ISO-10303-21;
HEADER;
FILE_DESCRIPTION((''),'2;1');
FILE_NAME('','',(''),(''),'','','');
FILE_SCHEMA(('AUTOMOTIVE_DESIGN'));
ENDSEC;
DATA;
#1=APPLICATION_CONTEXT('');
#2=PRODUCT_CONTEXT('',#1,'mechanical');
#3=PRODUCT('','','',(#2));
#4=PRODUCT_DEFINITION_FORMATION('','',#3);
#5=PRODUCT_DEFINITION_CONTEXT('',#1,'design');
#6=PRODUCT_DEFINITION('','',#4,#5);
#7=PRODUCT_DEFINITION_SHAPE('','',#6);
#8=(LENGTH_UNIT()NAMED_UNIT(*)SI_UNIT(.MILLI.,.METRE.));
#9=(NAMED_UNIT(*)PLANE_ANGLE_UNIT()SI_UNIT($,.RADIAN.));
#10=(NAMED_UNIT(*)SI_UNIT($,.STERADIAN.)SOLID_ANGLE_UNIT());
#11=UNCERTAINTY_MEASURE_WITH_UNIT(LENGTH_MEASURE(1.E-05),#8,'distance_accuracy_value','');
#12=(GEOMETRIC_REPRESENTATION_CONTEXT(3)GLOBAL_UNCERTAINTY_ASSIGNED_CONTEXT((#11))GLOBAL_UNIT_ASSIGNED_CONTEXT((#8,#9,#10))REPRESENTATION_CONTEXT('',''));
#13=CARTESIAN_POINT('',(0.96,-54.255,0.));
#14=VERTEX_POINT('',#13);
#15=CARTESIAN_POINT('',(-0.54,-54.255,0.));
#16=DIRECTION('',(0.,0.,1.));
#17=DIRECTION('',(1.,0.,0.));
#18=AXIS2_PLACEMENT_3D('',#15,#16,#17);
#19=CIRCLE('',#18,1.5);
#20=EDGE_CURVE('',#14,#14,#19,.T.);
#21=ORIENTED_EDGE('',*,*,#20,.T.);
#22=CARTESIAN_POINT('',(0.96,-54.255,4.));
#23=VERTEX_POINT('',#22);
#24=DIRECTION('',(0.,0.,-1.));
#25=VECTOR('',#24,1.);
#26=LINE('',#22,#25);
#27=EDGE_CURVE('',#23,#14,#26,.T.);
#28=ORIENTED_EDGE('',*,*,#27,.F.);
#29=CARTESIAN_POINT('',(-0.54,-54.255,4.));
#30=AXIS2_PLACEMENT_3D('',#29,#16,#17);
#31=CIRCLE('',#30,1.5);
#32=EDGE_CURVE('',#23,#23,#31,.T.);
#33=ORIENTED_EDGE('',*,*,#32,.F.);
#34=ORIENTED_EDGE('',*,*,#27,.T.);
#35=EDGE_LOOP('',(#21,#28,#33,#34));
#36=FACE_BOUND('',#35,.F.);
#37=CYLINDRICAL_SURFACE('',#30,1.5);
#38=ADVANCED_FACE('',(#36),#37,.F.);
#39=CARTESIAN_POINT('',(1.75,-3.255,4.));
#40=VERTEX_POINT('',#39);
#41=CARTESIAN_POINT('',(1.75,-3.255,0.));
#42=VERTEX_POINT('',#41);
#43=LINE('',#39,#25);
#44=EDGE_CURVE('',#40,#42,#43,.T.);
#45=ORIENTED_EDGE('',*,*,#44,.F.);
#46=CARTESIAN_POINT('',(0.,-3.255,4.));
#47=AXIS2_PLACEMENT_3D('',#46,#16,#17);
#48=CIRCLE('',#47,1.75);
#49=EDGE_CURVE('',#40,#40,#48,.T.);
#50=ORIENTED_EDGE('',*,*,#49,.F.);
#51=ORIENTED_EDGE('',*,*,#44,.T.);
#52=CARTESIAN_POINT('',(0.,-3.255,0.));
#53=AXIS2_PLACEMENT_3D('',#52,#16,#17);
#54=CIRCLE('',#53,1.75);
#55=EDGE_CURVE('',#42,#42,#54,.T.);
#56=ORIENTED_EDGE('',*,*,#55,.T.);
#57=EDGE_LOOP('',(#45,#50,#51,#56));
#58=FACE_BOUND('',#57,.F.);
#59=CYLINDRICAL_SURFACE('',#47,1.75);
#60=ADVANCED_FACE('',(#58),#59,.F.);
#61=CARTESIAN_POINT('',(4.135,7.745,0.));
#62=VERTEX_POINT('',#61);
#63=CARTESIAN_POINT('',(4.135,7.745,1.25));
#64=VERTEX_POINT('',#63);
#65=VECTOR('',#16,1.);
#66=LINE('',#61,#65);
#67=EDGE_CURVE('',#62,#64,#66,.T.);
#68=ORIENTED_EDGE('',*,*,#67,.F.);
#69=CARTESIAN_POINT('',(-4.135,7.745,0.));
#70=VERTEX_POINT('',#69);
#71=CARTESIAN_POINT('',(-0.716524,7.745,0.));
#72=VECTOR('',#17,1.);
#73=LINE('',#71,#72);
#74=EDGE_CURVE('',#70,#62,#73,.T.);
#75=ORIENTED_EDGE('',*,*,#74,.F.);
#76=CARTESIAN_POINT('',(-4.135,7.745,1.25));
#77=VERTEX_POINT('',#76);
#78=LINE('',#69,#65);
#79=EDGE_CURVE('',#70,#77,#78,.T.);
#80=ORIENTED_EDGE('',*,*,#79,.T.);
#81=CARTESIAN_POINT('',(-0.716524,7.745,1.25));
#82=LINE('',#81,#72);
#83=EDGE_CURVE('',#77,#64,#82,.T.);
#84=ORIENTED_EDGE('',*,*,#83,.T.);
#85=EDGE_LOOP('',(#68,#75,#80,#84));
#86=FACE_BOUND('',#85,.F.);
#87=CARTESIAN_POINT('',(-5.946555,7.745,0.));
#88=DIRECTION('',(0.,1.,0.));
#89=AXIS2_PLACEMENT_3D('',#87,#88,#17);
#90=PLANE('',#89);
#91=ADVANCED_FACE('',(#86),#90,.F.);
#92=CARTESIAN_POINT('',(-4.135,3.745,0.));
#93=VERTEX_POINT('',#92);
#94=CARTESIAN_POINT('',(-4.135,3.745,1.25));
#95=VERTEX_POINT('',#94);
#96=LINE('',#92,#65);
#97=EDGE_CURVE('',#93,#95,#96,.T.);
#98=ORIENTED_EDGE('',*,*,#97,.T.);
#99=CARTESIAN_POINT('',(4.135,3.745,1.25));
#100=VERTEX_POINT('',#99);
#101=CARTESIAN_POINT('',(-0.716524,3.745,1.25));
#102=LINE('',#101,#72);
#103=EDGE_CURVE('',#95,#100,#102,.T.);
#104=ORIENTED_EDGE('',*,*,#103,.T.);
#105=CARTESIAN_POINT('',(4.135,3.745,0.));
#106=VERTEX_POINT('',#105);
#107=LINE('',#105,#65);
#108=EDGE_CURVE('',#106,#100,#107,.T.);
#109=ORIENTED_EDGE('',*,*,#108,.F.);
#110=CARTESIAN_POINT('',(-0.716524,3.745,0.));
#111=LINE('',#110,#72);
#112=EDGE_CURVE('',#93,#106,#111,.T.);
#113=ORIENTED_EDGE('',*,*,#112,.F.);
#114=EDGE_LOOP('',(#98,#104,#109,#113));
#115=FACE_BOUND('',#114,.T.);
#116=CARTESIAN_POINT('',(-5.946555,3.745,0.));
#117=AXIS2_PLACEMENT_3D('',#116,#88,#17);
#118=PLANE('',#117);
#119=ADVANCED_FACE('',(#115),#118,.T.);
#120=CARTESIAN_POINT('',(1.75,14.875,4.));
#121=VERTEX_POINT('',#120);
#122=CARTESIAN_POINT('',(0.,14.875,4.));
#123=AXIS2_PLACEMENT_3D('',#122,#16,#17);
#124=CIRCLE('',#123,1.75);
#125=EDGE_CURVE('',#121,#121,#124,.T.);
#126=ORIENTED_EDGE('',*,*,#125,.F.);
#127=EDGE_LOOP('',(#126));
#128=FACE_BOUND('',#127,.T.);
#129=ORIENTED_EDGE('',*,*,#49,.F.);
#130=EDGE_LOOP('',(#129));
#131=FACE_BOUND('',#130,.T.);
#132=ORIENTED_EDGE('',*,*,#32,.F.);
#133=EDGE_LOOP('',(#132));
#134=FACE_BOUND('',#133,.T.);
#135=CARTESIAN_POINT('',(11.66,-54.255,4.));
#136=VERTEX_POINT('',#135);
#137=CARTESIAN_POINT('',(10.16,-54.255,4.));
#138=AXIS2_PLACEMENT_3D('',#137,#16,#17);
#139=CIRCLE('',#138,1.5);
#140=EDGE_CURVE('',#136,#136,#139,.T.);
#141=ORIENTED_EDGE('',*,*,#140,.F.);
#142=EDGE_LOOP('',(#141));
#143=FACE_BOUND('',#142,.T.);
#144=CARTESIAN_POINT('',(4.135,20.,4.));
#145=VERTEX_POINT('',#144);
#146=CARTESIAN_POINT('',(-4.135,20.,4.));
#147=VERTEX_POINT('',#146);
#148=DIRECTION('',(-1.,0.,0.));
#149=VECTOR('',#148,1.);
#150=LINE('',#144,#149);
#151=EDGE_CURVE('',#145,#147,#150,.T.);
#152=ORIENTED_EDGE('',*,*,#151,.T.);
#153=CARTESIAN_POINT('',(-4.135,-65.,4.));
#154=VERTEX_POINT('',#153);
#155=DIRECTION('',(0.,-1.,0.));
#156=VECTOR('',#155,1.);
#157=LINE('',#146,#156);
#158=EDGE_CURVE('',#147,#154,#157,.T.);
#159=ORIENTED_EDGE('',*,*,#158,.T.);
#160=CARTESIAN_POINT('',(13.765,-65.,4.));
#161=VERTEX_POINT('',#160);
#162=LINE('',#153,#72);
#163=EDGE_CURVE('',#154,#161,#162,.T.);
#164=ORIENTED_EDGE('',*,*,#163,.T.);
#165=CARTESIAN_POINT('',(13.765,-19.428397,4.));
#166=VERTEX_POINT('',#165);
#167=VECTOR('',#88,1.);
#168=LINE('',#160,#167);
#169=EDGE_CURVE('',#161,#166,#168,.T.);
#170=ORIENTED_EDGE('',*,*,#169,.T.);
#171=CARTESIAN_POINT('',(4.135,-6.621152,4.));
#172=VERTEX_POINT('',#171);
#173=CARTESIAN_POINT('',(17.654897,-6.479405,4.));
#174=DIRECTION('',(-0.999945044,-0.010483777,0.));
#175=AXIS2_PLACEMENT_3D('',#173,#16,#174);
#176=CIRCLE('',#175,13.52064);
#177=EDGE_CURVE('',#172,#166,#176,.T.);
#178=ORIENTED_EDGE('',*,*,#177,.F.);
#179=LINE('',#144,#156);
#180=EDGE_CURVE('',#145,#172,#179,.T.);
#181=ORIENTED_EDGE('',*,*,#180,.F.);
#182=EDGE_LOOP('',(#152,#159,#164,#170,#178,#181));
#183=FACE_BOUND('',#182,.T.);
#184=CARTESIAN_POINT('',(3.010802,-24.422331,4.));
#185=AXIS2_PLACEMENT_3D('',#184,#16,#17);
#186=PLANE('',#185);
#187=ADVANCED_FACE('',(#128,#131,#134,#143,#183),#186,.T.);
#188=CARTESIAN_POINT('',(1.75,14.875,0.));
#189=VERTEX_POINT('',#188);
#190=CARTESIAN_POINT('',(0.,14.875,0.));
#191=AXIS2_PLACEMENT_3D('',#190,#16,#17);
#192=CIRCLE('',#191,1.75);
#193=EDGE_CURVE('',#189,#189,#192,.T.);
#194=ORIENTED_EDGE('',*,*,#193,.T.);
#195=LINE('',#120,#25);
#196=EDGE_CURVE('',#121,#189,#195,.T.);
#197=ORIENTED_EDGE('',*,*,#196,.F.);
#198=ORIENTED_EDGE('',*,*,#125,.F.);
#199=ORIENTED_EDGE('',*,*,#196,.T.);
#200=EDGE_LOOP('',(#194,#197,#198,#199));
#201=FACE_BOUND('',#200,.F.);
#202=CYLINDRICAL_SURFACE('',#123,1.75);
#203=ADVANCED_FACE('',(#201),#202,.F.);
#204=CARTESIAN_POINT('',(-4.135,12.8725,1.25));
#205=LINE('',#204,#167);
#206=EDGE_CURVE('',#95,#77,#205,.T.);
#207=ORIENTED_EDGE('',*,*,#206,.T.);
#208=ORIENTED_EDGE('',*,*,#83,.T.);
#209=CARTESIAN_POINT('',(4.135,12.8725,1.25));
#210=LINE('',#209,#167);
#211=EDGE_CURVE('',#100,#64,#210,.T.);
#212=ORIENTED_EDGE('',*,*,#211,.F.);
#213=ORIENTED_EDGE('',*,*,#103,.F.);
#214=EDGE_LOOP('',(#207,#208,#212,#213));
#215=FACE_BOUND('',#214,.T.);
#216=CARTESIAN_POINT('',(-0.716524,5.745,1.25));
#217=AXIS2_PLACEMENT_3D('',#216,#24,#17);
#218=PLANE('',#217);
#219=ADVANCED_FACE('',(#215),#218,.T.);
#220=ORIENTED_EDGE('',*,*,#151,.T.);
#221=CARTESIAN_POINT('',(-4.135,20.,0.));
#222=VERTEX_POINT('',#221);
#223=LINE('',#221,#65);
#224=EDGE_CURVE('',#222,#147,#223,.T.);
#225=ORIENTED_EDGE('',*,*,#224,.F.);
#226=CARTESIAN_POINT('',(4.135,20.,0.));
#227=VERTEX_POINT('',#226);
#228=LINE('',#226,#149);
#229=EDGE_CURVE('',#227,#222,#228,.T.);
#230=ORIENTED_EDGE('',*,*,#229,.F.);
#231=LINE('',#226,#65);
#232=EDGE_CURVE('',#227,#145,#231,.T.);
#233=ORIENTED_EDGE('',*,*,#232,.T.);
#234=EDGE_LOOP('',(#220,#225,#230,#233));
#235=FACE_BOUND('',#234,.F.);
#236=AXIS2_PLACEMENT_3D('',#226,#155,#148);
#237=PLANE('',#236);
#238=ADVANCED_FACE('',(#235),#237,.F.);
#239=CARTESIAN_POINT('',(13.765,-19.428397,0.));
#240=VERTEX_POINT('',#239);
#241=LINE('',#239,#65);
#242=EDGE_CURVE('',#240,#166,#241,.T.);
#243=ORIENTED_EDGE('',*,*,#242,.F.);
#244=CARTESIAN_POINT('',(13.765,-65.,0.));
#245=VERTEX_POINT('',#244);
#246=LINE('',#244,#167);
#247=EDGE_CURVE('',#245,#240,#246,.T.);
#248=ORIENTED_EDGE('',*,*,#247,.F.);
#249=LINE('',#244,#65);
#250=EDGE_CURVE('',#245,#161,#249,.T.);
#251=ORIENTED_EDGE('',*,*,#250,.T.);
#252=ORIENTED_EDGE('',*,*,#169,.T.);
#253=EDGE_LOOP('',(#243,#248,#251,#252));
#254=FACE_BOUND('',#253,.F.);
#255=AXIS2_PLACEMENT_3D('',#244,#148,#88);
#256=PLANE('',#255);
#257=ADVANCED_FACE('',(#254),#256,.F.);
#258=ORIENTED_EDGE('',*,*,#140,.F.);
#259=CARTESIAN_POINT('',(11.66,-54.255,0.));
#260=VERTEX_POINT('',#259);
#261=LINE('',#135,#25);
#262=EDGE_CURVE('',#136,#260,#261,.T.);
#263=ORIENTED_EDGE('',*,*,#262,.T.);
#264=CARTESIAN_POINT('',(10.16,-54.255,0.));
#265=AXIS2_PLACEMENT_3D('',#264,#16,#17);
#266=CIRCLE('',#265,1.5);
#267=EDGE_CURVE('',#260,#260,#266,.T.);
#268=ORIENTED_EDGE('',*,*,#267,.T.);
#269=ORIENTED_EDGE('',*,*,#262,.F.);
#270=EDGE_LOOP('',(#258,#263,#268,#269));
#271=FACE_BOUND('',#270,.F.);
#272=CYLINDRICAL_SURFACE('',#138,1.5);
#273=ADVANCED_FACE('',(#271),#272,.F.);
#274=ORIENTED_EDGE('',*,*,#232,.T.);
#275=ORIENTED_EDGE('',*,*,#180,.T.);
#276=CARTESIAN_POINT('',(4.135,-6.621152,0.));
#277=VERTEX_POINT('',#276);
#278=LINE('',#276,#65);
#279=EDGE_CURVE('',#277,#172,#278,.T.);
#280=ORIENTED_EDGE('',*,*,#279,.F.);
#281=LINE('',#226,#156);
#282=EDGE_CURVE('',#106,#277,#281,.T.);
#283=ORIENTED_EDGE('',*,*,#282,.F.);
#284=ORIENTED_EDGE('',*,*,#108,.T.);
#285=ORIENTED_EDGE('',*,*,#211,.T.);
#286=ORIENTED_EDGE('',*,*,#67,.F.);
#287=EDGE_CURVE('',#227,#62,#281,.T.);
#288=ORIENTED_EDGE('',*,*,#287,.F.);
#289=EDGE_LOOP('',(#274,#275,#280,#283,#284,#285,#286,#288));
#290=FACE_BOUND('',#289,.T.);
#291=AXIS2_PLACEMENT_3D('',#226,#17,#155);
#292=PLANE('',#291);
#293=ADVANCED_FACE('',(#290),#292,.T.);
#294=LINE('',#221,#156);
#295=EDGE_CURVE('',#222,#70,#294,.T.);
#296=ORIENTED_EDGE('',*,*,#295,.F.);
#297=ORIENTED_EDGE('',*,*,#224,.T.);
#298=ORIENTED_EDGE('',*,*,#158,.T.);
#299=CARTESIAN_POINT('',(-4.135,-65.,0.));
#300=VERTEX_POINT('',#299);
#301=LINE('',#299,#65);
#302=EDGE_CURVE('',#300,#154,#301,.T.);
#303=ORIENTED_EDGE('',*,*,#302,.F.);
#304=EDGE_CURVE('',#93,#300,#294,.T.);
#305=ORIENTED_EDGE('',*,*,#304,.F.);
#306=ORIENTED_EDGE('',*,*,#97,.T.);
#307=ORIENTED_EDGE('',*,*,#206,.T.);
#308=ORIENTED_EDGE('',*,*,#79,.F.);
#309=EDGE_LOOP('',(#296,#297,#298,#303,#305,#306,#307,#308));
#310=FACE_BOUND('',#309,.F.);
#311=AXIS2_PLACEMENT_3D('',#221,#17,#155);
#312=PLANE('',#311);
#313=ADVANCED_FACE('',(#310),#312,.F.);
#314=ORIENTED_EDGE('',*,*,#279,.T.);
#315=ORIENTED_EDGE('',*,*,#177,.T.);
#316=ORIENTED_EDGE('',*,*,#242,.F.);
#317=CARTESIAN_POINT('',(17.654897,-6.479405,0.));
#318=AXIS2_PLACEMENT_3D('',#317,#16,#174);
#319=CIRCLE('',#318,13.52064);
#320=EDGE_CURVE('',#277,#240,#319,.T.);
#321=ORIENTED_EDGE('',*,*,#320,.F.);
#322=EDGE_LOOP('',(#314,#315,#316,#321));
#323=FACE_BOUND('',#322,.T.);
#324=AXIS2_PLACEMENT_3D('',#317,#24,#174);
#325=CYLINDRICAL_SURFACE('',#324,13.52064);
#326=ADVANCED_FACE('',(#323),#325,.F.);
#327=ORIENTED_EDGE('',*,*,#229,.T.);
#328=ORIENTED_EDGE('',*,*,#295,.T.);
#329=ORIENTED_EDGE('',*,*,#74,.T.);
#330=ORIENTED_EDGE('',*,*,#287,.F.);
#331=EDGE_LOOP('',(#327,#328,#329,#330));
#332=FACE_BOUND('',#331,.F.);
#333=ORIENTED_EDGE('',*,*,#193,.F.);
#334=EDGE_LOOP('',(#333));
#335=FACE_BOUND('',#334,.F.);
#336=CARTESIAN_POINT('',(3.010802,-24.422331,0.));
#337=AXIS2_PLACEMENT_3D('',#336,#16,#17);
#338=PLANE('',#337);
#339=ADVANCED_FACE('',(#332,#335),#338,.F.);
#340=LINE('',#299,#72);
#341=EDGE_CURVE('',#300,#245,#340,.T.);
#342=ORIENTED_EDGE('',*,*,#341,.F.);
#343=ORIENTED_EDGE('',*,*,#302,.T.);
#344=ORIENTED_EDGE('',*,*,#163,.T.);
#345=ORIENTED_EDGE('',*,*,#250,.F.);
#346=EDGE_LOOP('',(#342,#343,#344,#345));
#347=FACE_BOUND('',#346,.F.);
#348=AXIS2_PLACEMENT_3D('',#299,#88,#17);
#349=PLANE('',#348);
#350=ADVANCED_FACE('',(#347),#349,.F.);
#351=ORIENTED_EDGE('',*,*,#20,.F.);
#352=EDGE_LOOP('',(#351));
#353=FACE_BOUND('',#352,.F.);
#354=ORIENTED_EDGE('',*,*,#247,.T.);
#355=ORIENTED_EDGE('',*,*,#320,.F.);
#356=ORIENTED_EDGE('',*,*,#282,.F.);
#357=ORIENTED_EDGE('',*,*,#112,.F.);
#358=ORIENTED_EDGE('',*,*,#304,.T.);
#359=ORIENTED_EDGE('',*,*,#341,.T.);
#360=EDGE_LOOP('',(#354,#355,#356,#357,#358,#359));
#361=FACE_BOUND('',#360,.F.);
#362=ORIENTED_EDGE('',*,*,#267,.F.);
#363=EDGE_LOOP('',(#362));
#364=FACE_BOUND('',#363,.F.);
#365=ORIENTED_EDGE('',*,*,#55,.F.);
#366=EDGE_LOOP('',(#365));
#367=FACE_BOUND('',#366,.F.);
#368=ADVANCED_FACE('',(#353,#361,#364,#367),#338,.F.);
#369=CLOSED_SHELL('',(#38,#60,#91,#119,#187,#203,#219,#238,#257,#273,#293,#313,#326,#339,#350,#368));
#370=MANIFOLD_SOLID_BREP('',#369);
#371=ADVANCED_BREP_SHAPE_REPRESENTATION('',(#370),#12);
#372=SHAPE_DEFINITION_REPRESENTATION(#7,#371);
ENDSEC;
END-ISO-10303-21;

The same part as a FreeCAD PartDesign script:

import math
import FreeCAD as App
import Part
import Sketcher

V = App.Vector
Q = App.Units.Quantity


def add_polygon(sketch, points):
    """Adds a closed chain of lines whose ends are joined by coincident constraints."""
    first, n = sketch.GeometryCount, len(points)
    for a, b in zip(points, points[1:] + points[:1]):
        sketch.addGeometry(Part.LineSegment(App.Vector(*a, 0), App.Vector(*b, 0)), False)
    for i in range(n):
        sketch.addConstraint(Sketcher.Constraint("Coincident", first + i, 2, first + (i + 1) % n, 1))

doc = App.newDocument("Part")
body = doc.addObject("PartDesign::Body", "Body")

# Sketch on XY plane
sketch1 = body.newObject("Sketcher::SketchObject", "Sketch")
sketch1.AttachmentSupport = (doc.getObject("XY_Plane"), [""])
sketch1.MapMode = "FlatFace"
sketch1.addGeometry([
    Part.LineSegment(V(-4, 20, 0), V(-4, -65, 0)),  # 0
    Part.LineSegment(V(-4, -65, 0), V(14, -65, 0)),  # 1
    Part.LineSegment(V(14, -65, 0), V(14, -19, 0)),  # 2
    Part.ArcOfCircle(Part.Circle(V(18, -6, 0), V(0, 0, 1), 14), math.radians(-179), math.radians(-107)),  # 3
    Part.LineSegment(V(4, -7, 0), V(4, 20, 0)),  # 4
    Part.LineSegment(V(4, 20, 0), V(-4, 20, 0)),  # 5
], False)
sketch1.addConstraint([
    Sketcher.Constraint("Coincident", 0, 2, 1, 1),
    Sketcher.Constraint("Coincident", 1, 2, 2, 1),
    Sketcher.Constraint("Coincident", 2, 2, 3, 2),
    Sketcher.Constraint("Coincident", 3, 1, 4, 1),
    Sketcher.Constraint("Coincident", 4, 2, 5, 1),
    Sketcher.Constraint("Coincident", 5, 2, 0, 1),
    Sketcher.Constraint("Vertical", 0),
    Sketcher.Constraint("Horizontal", 1),
    Sketcher.Constraint("Vertical", 2),
    Sketcher.Constraint("Vertical", 4),
    Sketcher.Constraint("Horizontal", 5),
    Sketcher.Constraint("DistanceY", 0, 2, 0, 1, Q("85 mm")),
    Sketcher.Constraint("DistanceX", 1, 1, 1, 2, Q("17.9 mm")),
    Sketcher.Constraint("DistanceY", 0, 2, -1, 1, Q("65 mm")),
    Sketcher.Constraint("DistanceX", 5, 2, 5, 1, Q("8.27 mm")),
    Sketcher.Constraint("Radius", 3, Q("13.52064 mm")),
    Sketcher.Constraint("DistanceX", 0, 2, -1, 1, Q("4.135 mm")),
    Sketcher.Constraint("DistanceY", 2, 1, 2, 2, Q("45.571603 mm")),
    Sketcher.Constraint("DistanceY", 4, 1, 4, 2, Q("26.621152 mm")),
])
pad1 = body.newObject("PartDesign::Pad", "Pad")
pad1.Profile = sketch1
pad1.Length = 4

# Sketch on XY plane
sketch2 = body.newObject("Sketcher::SketchObject", "Sketch001")
sketch2.AttachmentSupport = (doc.getObject("XY_Plane"), [""])
sketch2.MapMode = "FlatFace"
sketch2.AttachmentOffset = App.Placement(V(0, 0, 4), App.Rotation())
sketch2.addGeometry([
    Part.Circle(V(0, 14.9, 0), V(0, 0, 1), 1.8),
    Part.Circle(V(0, -3.3, 0), V(0, 0, 1), 1.8),
    Part.Circle(V(-0.5, -54.3, 0), V(0, 0, 1), 1.5),
    Part.Circle(V(10.2, -54.3, 0), V(0, 0, 1), 1.5),
], False)
sketch2.addConstraint([
    Sketcher.Constraint("Equal", 0, 1),
    Sketcher.Constraint("Equal", 2, 3),
    Sketcher.Constraint("PointOnObject", 0, 3, -2),
    Sketcher.Constraint("PointOnObject", 1, 3, -2),
    Sketcher.Constraint("Horizontal", 2, 3, 3, 3),
    Sketcher.Constraint("Diameter", 2, Q("3 mm")),
    Sketcher.Constraint("Diameter", 0, Q("3.5 mm")),
    Sketcher.Constraint("DistanceY", 2, 3, 1, 3, Q("51 mm")),
    Sketcher.Constraint("DistanceX", 2, 3, 3, 3, Q("10.7 mm")),
    Sketcher.Constraint("DistanceX", 2, 3, -1, 1, Q("0.54 mm")),
    Sketcher.Constraint("DistanceY", 1, 3, 0, 3, Q("18.13 mm")),
    Sketcher.Constraint("DistanceY", -1, 1, 0, 3, Q("14.875 mm")),
])
pocket1 = body.newObject("PartDesign::Pocket", "Pocket")
pocket1.Profile = sketch2
pocket1.Length = 5

# Sketch on XY plane
sketch3 = body.newObject("Sketcher::SketchObject", "Sketch002")
sketch3.AttachmentSupport = (doc.getObject("XY_Plane"), [""])
sketch3.MapMode = "FlatFace"
add_polygon(sketch3, [(-5.9, 3.7), (-5.9, 7.7), (4.5, 7.7), (4.5, 3.7)])  # lines 0-3
sketch3.addConstraint([
    Sketcher.Constraint("Vertical", 0),
    Sketcher.Constraint("Horizontal", 1),
    Sketcher.Constraint("Vertical", 2),
    Sketcher.Constraint("Horizontal", 3),
    Sketcher.Constraint("DistanceY", 0, 1, 0, 2, Q("4 mm")),
    Sketcher.Constraint("DistanceY", -1, 1, 0, 2, Q("7.745 mm")),
    Sketcher.Constraint("DistanceX", 1, 1, 1, 2, Q("10.460062 mm")),
    Sketcher.Constraint("DistanceX", 0, 2, -1, 1, Q("5.946555 mm")),
])
pocket2 = body.newObject("PartDesign::Pocket", "Pocket001")
pocket2.Profile = sketch3
pocket2.Length = 1.25
pocket2.Reversed = True

doc.recompute()
